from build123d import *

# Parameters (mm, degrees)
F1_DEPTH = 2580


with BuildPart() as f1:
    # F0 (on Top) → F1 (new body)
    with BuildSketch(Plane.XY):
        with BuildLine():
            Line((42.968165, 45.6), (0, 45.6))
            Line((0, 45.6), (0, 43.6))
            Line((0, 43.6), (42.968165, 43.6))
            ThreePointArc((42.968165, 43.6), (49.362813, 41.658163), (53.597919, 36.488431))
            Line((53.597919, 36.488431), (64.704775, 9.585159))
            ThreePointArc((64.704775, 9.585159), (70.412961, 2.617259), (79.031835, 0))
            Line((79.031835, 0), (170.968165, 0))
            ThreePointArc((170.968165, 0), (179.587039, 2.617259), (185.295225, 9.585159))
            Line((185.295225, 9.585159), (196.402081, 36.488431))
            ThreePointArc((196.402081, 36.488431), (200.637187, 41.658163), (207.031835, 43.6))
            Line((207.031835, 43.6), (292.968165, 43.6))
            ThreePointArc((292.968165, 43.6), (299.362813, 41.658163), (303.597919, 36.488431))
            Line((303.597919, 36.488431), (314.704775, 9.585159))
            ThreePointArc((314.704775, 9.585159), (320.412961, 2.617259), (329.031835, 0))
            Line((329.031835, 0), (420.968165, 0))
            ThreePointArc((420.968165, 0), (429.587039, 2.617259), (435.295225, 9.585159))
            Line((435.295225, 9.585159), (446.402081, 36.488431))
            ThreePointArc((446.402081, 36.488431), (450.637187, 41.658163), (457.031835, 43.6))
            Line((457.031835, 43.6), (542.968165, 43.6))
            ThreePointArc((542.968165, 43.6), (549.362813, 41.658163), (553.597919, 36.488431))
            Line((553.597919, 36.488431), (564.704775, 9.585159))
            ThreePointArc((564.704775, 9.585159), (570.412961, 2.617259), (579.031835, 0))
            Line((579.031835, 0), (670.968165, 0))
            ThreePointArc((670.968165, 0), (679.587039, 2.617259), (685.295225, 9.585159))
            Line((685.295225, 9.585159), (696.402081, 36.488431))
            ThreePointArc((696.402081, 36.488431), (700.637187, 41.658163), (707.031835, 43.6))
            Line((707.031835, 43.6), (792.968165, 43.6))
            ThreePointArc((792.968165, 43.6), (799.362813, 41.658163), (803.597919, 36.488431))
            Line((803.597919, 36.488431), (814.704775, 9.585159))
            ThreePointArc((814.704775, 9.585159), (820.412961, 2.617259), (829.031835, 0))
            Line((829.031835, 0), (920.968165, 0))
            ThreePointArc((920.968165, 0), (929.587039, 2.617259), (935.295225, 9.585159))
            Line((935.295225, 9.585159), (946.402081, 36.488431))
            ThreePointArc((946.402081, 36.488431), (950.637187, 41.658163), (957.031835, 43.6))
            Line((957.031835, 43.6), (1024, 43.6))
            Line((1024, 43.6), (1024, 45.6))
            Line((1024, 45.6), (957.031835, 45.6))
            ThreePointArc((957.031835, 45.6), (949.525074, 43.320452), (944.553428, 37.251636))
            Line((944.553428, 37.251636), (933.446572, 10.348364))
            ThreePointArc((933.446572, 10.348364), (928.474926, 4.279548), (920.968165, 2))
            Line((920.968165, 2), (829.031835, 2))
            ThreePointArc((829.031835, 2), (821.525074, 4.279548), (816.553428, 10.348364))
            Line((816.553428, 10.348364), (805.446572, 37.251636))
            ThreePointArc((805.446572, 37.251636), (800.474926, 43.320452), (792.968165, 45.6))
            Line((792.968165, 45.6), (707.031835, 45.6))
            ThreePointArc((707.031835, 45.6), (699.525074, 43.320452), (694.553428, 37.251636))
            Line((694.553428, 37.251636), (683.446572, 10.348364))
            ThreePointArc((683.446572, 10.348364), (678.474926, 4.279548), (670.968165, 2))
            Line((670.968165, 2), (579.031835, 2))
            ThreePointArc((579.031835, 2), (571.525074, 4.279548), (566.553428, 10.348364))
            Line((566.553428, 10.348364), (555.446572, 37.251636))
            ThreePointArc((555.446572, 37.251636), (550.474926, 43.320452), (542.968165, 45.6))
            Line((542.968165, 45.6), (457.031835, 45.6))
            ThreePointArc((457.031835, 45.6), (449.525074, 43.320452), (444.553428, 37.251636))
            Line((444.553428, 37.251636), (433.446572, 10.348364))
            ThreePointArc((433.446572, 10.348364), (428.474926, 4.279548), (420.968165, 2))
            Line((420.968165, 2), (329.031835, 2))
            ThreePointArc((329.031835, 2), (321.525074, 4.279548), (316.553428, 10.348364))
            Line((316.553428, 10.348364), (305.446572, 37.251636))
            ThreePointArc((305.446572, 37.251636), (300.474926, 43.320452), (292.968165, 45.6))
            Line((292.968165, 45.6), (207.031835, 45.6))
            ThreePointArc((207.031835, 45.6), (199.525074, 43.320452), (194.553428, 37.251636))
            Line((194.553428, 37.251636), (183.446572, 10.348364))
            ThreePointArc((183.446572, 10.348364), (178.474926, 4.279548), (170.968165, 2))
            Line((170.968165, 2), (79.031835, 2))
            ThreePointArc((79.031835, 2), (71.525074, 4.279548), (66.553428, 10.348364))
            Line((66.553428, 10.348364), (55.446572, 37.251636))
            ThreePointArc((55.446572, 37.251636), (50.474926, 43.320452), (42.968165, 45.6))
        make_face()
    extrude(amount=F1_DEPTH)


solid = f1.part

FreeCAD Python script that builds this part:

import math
import FreeCAD as App
import Part
import Sketcher

V = App.Vector
Q = App.Units.Quantity

doc = App.newDocument("Part")
body = doc.addObject("PartDesign::Body", "Body")

# Sketch on XY plane
sketch1 = body.newObject("Sketcher::SketchObject", "Sketch")
sketch1.AttachmentSupport = (doc.getObject("XY_Plane"), [""])
sketch1.MapMode = "FlatFace"
sketch1.addGeometry([
    Part.LineSegment(V(42.968165, 45.6, 0), V(0, 45.6, 0)),  # 0
    Part.LineSegment(V(0, 45.6, 0), V(0, 43.6, 0)),  # 1
    Part.LineSegment(V(0, 43.6, 0), V(42.968165, 43.6, 0)),  # 2
    Part.ArcOfCircle(Part.Circle(V(42.968166, 32.100001, 0), V(0, 0, 1), 11.499999), math.radians(22.432989), math.radians(90.000003)),  # 3
    Part.LineSegment(V(53.597919, 36.488431, 0), V(64.704775, 9.585159, 0)),  # 4
    Part.ArcOfCircle(Part.Circle(V(79.031834, 15.499999, 0), V(0, 0, 1), 15.499999), math.radians(-157.567014), math.radians(-89.999997)),  # 5
    Part.LineSegment(V(79.031835, 0, 0), V(170.968165, 0, 0)),  # 6
    Part.ArcOfCircle(Part.Circle(V(170.968166, 15.499999, 0), V(0, 0, 1), 15.499999), math.radians(-90.000003), math.radians(-22.432986)),  # 7
    Part.LineSegment(V(185.295225, 9.585159, 0), V(196.402081, 36.488431, 0)),  # 8
    Part.ArcOfCircle(Part.Circle(V(207.031834, 32.100001, 0), V(0, 0, 1), 11.499999), math.radians(89.999997), math.radians(157.567011)),  # 9
    Part.LineSegment(V(207.031835, 43.6, 0), V(292.968165, 43.6, 0)),  # 10
    Part.ArcOfCircle(Part.Circle(V(292.968166, 32.100001, 0), V(0, 0, 1), 11.499999), math.radians(22.432989), math.radians(90.000003)),  # 11
    Part.LineSegment(V(303.597919, 36.488431, 0), V(314.704775, 9.585159, 0)),  # 12
    Part.ArcOfCircle(Part.Circle(V(329.031834, 15.499999, 0), V(0, 0, 1), 15.499999), math.radians(-157.567014), math.radians(-89.999997)),  # 13
    Part.LineSegment(V(329.031835, 0, 0), V(420.968165, 0, 0)),  # 14
    Part.ArcOfCircle(Part.Circle(V(420.968166, 15.499999, 0), V(0, 0, 1), 15.499999), math.radians(-90.000003), math.radians(-22.432986)),  # 15
    Part.LineSegment(V(435.295225, 9.585159, 0), V(446.402081, 36.488431, 0)),  # 16
    Part.ArcOfCircle(Part.Circle(V(457.031834, 32.100001, 0), V(0, 0, 1), 11.499999), math.radians(89.999997), math.radians(157.567011)),  # 17
    Part.LineSegment(V(457.031835, 43.6, 0), V(542.968165, 43.6, 0)),  # 18
    Part.ArcOfCircle(Part.Circle(V(542.968166, 32.100001, 0), V(0, 0, 1), 11.499999), math.radians(22.432989), math.radians(90.000003)),  # 19
    Part.LineSegment(V(553.597919, 36.488431, 0), V(564.704775, 9.585159, 0)),  # 20
    Part.ArcOfCircle(Part.Circle(V(579.031834, 15.499999, 0), V(0, 0, 1), 15.499999), math.radians(-157.567014), math.radians(-89.999997)),  # 21
    Part.LineSegment(V(579.031835, 0, 0), V(670.968165, 0, 0)),  # 22
    Part.ArcOfCircle(Part.Circle(V(670.968166, 15.499999, 0), V(0, 0, 1), 15.499999), math.radians(-90.000003), math.radians(-22.432986)),  # 23
    Part.LineSegment(V(685.295225, 9.585159, 0), V(696.402081, 36.488431, 0)),  # 24
    Part.ArcOfCircle(Part.Circle(V(707.031834, 32.100001, 0), V(0, 0, 1), 11.499999), math.radians(89.999997), math.radians(157.567011)),  # 25
    Part.LineSegment(V(707.031835, 43.6, 0), V(792.968165, 43.6, 0)),  # 26
    Part.ArcOfCircle(Part.Circle(V(792.968166, 32.100001, 0), V(0, 0, 1), 11.499999), math.radians(22.432989), math.radians(90.000003)),  # 27
    Part.LineSegment(V(803.597919, 36.488431, 0), V(814.704775, 9.585159, 0)),  # 28
    Part.ArcOfCircle(Part.Circle(V(829.031834, 15.499999, 0), V(0, 0, 1), 15.499999), math.radians(-157.567014), math.radians(-89.999997)),  # 29
    Part.LineSegment(V(829.031835, 0, 0), V(920.968165, 0, 0)),  # 30
    Part.ArcOfCircle(Part.Circle(V(920.968166, 15.499999, 0), V(0, 0, 1), 15.499999), math.radians(-90.000003), math.radians(-22.432986)),  # 31
    Part.LineSegment(V(935.295225, 9.585159, 0), V(946.402081, 36.488431, 0)),  # 32
    Part.ArcOfCircle(Part.Circle(V(957.031834, 32.100001, 0), V(0, 0, 1), 11.499999), math.radians(89.999997), math.radians(157.567011)),  # 33
    Part.LineSegment(V(957.031835, 43.6, 0), V(1024, 43.6, 0)),  # 34
    Part.LineSegment(V(1024, 43.6, 0), V(1024, 45.6, 0)),  # 35
    Part.LineSegment(V(1024, 45.6, 0), V(957.031835, 45.6, 0)),  # 36
    Part.ArcOfCircle(Part.Circle(V(957.031834, 32.100001, 0), V(0, 0, 1), 13.499999), math.radians(89.999997), math.radians(157.567013)),  # 37
    Part.LineSegment(V(944.553428, 37.251636, 0), V(933.446572, 10.348364, 0)),  # 38
    Part.ArcOfCircle(Part.Circle(V(920.968166, 15.499999, 0), V(0, 0, 1), 13.499999), math.radians(-90.000003), math.radians(-22.432987)),  # 39
    Part.LineSegment(V(920.968165, 2, 0), V(829.031835, 2, 0)),  # 40
    Part.ArcOfCircle(Part.Circle(V(829.031834, 15.499999, 0), V(0, 0, 1), 13.499999), math.radians(-157.567013), math.radians(-89.999997)),  # 41
    Part.LineSegment(V(816.553428, 10.348364, 0), V(805.446572, 37.251636, 0)),  # 42
    Part.ArcOfCircle(Part.Circle(V(792.968166, 32.100001, 0), V(0, 0, 1), 13.499999), math.radians(22.432987), math.radians(90.000003)),  # 43
    Part.LineSegment(V(792.968165, 45.6, 0), V(707.031835, 45.6, 0)),  # 44
    Part.ArcOfCircle(Part.Circle(V(707.031834, 32.100001, 0), V(0, 0, 1), 13.499999), math.radians(89.999997), math.radians(157.567013)),  # 45
    Part.LineSegment(V(694.553428, 37.251636, 0), V(683.446572, 10.348364, 0)),  # 46
    Part.ArcOfCircle(Part.Circle(V(670.968166, 15.499999, 0), V(0, 0, 1), 13.499999), math.radians(-90.000003), math.radians(-22.432987)),  # 47
    Part.LineSegment(V(670.968165, 2, 0), V(579.031835, 2, 0)),  # 48
    Part.ArcOfCircle(Part.Circle(V(579.031834, 15.499999, 0), V(0, 0, 1), 13.499999), math.radians(-157.567013), math.radians(-89.999997)),  # 49
    Part.LineSegment(V(566.553428, 10.348364, 0), V(555.446572, 37.251636, 0)),  # 50
    Part.ArcOfCircle(Part.Circle(V(542.968166, 32.100001, 0), V(0, 0, 1), 13.499999), math.radians(22.432987), math.radians(90.000003)),  # 51
    Part.LineSegment(V(542.968165, 45.6, 0), V(457.031835, 45.6, 0)),  # 52
    Part.ArcOfCircle(Part.Circle(V(457.031834, 32.100001, 0), V(0, 0, 1), 13.499999), math.radians(89.999997), math.radians(157.567013)),  # 53
    Part.LineSegment(V(444.553428, 37.251636, 0), V(433.446572, 10.348364, 0)),  # 54
    Part.ArcOfCircle(Part.Circle(V(420.968166, 15.499999, 0), V(0, 0, 1), 13.499999), math.radians(-90.000003), math.radians(-22.432987)),  # 55
    Part.LineSegment(V(420.968165, 2, 0), V(329.031835, 2, 0)),  # 56
    Part.ArcOfCircle(Part.Circle(V(329.031834, 15.499999, 0), V(0, 0, 1), 13.499999), math.radians(-157.567013), math.radians(-89.999997)),  # 57
    Part.LineSegment(V(316.553428, 10.348364, 0), V(305.446572, 37.251636, 0)),  # 58
    Part.ArcOfCircle(Part.Circle(V(292.968166, 32.100001, 0), V(0, 0, 1), 13.499999), math.radians(22.432987), math.radians(90.000003)),  # 59
    Part.LineSegment(V(292.968165, 45.6, 0), V(207.031835, 45.6, 0)),  # 60
    Part.ArcOfCircle(Part.Circle(V(207.031834, 32.100001, 0), V(0, 0, 1), 13.499999), math.radians(89.999997), math.radians(157.567013)),  # 61
    Part.LineSegment(V(194.553428, 37.251636, 0), V(183.446572, 10.348364, 0)),  # 62
    Part.ArcOfCircle(Part.Circle(V(170.968166, 15.499999, 0), V(0, 0, 1), 13.499999), math.radians(-90.000003), math.radians(-22.432987)),  # 63
    Part.LineSegment(V(170.968165, 2, 0), V(79.031835, 2, 0)),  # 64
    Part.ArcOfCircle(Part.Circle(V(79.031834, 15.499999, 0), V(0, 0, 1), 13.499999), math.radians(-157.567013), math.radians(-89.999997)),  # 65
    Part.LineSegment(V(66.553428, 10.348364, 0), V(55.446572, 37.251636, 0)),  # 66
    Part.ArcOfCircle(Part.Circle(V(42.968166, 32.100001, 0), V(0, 0, 1), 13.499999), math.radians(22.432987), math.radians(90.000003)),  # 67
], False)
sketch1.addConstraint([
    Sketcher.Constraint("Coincident", 0, 2, 1, 1),
    Sketcher.Constraint("Coincident", 1, 2, 2, 1),
    Sketcher.Constraint("Tangent", 2, 2, 3, 2),
    Sketcher.Constraint("Tangent", 3, 1, 4, 1),
    Sketcher.Constraint("Tangent", 4, 2, 5, 1),
    Sketcher.Constraint("Tangent", 5, 2, 6, 1),
    Sketcher.Constraint("Tangent", 6, 2, 7, 1),
    Sketcher.Constraint("Tangent", 7, 2, 8, 1),
    Sketcher.Constraint("Tangent", 8, 2, 9, 2),
    Sketcher.Constraint("Tangent", 9, 1, 10, 1),
    Sketcher.Constraint("Tangent", 10, 2, 11, 2),
    Sketcher.Constraint("Tangent", 11, 1, 12, 1),
    Sketcher.Constraint("Tangent", 12, 2, 13, 1),
    Sketcher.Constraint("Tangent", 13, 2, 14, 1),
    Sketcher.Constraint("Tangent", 14, 2, 15, 1),
    Sketcher.Constraint("Tangent", 15, 2, 16, 1),
    Sketcher.Constraint("Tangent", 16, 2, 17, 2),
    Sketcher.Constraint("Tangent", 17, 1, 18, 1),
    Sketcher.Constraint("Tangent", 18, 2, 19, 2),
    Sketcher.Constraint("Tangent", 19, 1, 20, 1),
    Sketcher.Constraint("Tangent", 20, 2, 21, 1),
    Sketcher.Constraint("Tangent", 21, 2, 22, 1),
    Sketcher.Constraint("Tangent", 22, 2, 23, 1),
    Sketcher.Constraint("Tangent", 23, 2, 24, 1),
    Sketcher.Constraint("Tangent", 24, 2, 25, 2),
    Sketcher.Constraint("Tangent", 25, 1, 26, 1),
    Sketcher.Constraint("Tangent", 26, 2, 27, 2),
    Sketcher.Constraint("Tangent", 27, 1, 28, 1),
    Sketcher.Constraint("Tangent", 28, 2, 29, 1),
    Sketcher.Constraint("Tangent", 29, 2, 30, 1),
    Sketcher.Constraint("Tangent", 30, 2, 31, 1),
    Sketcher.Constraint("Tangent", 31, 2, 32, 1),
    Sketcher.Constraint("Tangent", 32, 2, 33, 2),
    Sketcher.Constraint("Tangent", 33, 1, 34, 1),
    Sketcher.Constraint("Coincident", 34, 2, 35, 1),
    Sketcher.Constraint("Coincident", 35, 2, 36, 1),
    Sketcher.Constraint("Tangent", 36, 2, 37, 1),
    Sketcher.Constraint("Tangent", 37, 2, 38, 1),
    Sketcher.Constraint("Tangent", 38, 2, 39, 2),
    Sketcher.Constraint("Tangent", 39, 1, 40, 1),
    Sketcher.Constraint("Tangent", 40, 2, 41, 2),
    Sketcher.Constraint("Tangent", 41, 1, 42, 1),
    Sketcher.Constraint("Tangent", 42, 2, 43, 1),
    Sketcher.Constraint("Tangent", 43, 2, 44, 1),
    Sketcher.Constraint("Tangent", 44, 2, 45, 1),
    Sketcher.Constraint("Tangent", 45, 2, 46, 1),
    Sketcher.Constraint("Tangent", 46, 2, 47, 2),
    Sketcher.Constraint("Tangent", 47, 1, 48, 1),
    Sketcher.Constraint("Tangent", 48, 2, 49, 2),
    Sketcher.Constraint("Tangent", 49, 1, 50, 1),
    Sketcher.Constraint("Tangent", 50, 2, 51, 1),
    Sketcher.Constraint("Tangent", 51, 2, 52, 1),
    Sketcher.Constraint("Tangent", 52, 2, 53, 1),
    Sketcher.Constraint("Tangent", 53, 2, 54, 1),
    Sketcher.Constraint("Tangent", 54, 2, 55, 2),
    Sketcher.Constraint("Tangent", 55, 1, 56, 1),
    Sketcher.Constraint("Tangent", 56, 2, 57, 2),
    Sketcher.Constraint("Tangent", 57, 1, 58, 1),
    Sketcher.Constraint("Tangent", 58, 2, 59, 1),
    Sketcher.Constraint("Tangent", 59, 2, 60, 1),
    Sketcher.Constraint("Tangent", 60, 2, 61, 1),
    Sketcher.Constraint("Tangent", 61, 2, 62, 1),
    Sketcher.Constraint("Tangent", 62, 2, 63, 2),
    Sketcher.Constraint("Tangent", 63, 1, 64, 1),
    Sketcher.Constraint("Tangent", 64, 2, 65, 2),
    Sketcher.Constraint("Tangent", 65, 1, 66, 1),
    Sketcher.Constraint("Tangent", 66, 2, 67, 1),
    Sketcher.Constraint("Tangent", 67, 2, 0, 1),
    Sketcher.Constraint("Horizontal", 0),
    Sketcher.Constraint("Vertical", 1),
    Sketcher.Constraint("Horizontal", 2),
    Sketcher.Constraint("Horizontal", 6),
    Sketcher.Constraint("Horizontal", 10),
    Sketcher.Constraint("Horizontal", 14),
    Sketcher.Constraint("Horizontal", 18),
    Sketcher.Constraint("Horizontal", 22),
    Sketcher.Constraint("Horizontal", 26),
    Sketcher.Constraint("Horizontal", 30),
    Sketcher.Constraint("Horizontal", 34),
    Sketcher.Constraint("Vertical", 35),
    Sketcher.Constraint("Horizontal", 36),
    Sketcher.Constraint("Horizontal", 40),
    Sketcher.Constraint("Horizontal", 44),
    Sketcher.Constraint("Horizontal", 48),
    Sketcher.Constraint("Horizontal", 52),
    Sketcher.Constraint("Horizontal", 56),
    Sketcher.Constraint("Horizontal", 60),
    Sketcher.Constraint("Horizontal", 64),
    Sketcher.Constraint("Coincident", 37, 3, 33, 3),
    Sketcher.Constraint("Coincident", 39, 3, 31, 3),
    Sketcher.Constraint("Coincident", 41, 3, 29, 3),
    Sketcher.Constraint("Coincident", 43, 3, 27, 3),
    Sketcher.Constraint("Coincident", 45, 3, 25, 3),
    Sketcher.Constraint("Coincident", 47, 3, 23, 3),
    Sketcher.Constraint("Coincident", 49, 3, 21, 3),
    Sketcher.Constraint("Coincident", 51, 3, 19, 3),
    Sketcher.Constraint("Coincident", 53, 3, 17, 3),
    Sketcher.Constraint("Coincident", 55, 3, 15, 3),
    Sketcher.Constraint("Coincident", 57, 3, 13, 3),
    Sketcher.Constraint("Coincident", 59, 3, 11, 3),
    Sketcher.Constraint("Coincident", 61, 3, 9, 3),
    Sketcher.Constraint("Coincident", 63, 3, 7, 3),
    Sketcher.Constraint("Coincident", 65, 3, 5, 3),
    Sketcher.Constraint("Coincident", 67, 3, 3, 3),
    Sketcher.Constraint("Equal", 5, 7),
    Sketcher.Constraint("Equal", 3, 9),
    Sketcher.Constraint("Equal", 9, 11),
    Sketcher.Constraint("Equal", 7, 13),
    Sketcher.Constraint("Equal", 13, 15),
    Sketcher.Constraint("Equal", 11, 17),
    Sketcher.Constraint("Equal", 17, 19),
    Sketcher.Constraint("Equal", 15, 21),
    Sketcher.Constraint("Equal", 21, 23),
    Sketcher.Constraint("Equal", 19, 25),
    Sketcher.Constraint("Equal", 25, 27),
    Sketcher.Constraint("Equal", 23, 29),
    Sketcher.Constraint("Equal", 29, 31),
    Sketcher.Constraint("Equal", 27, 33),
    Sketcher.Constraint("Equal", 37, 39),
    Sketcher.Constraint("Equal", 41, 43),
    Sketcher.Constraint("Equal", 45, 47),
    Sketcher.Constraint("Equal", 49, 51),
    Sketcher.Constraint("Equal", 53, 55),
    Sketcher.Constraint("Equal", 57, 59),
    Sketcher.Constraint("Equal", 61, 63),
    Sketcher.Constraint("Equal", 65, 67),
    Sketcher.Constraint("PointOnObject", 0, 2, -2),
    Sketcher.Constraint("PointOnObject", 5, 2, -1),
    Sketcher.Constraint("PointOnObject", 13, 2, -1),
    Sketcher.Constraint("PointOnObject", 21, 2, -1),
    Sketcher.Constraint("PointOnObject", 29, 2, -1),
    Sketcher.Constraint("Parallel", 4, 12),
    Sketcher.Constraint("Parallel", 8, 16),
    Sketcher.Constraint("Parallel", 12, 20),
    Sketcher.Constraint("Parallel", 16, 24),
    Sketcher.Constraint("Parallel", 20, 28),
    Sketcher.Constraint("Parallel", 24, 32),
    Sketcher.Constraint("Parallel", 32, 38),
    Sketcher.Constraint("Horizontal", 3, 3, 9, 3),
    Sketcher.Constraint("Horizontal", 11, 3, 17, 3),
    Sketcher.Constraint("Horizontal", 19, 3, 25, 3),
    Sketcher.Constraint("Horizontal", 27, 3, 33, 3),
    Sketcher.Constraint("Horizontal", 4, 2, 7, 2),
    Sketcher.Constraint("Equal", 6, 14),
    Sketcher.Constraint("Equal", 10, 18),
    Sketcher.Constraint("Equal", 14, 22),
    Sketcher.Constraint("Equal", 18, 26),
    Sketcher.Constraint("Equal", 22, 30),
    Sketcher.Constraint("Radius", 3, Q("11.499999 mm")),
    Sketcher.Constraint("Radius", 5, Q("15.499999 mm")),
    Sketcher.Constraint("DistanceX", -1, 1, 34, 2, Q("1024 mm")),
    Sketcher.Constraint("DistanceY", -1, 1, 3, 3, Q("32.100001 mm")),
    Sketcher.Constraint("DistanceX", 6, 1, 6, 2, Q("91.93633 mm")),
    Sketcher.Constraint("DistanceX", 10, 1, 10, 2, Q("85.93633 mm")),
    Sketcher.Constraint("DistanceX", 0, 2, 0, 1, Q("42.968165 mm")),
    Sketcher.Constraint("DistanceX", 34, 1, 34, 2, Q("66.968165 mm")),
])
pad1 = body.newObject("PartDesign::Pad", "Pad")
pad1.Profile = sketch1
pad1.Length = 2580

doc.recompute()
